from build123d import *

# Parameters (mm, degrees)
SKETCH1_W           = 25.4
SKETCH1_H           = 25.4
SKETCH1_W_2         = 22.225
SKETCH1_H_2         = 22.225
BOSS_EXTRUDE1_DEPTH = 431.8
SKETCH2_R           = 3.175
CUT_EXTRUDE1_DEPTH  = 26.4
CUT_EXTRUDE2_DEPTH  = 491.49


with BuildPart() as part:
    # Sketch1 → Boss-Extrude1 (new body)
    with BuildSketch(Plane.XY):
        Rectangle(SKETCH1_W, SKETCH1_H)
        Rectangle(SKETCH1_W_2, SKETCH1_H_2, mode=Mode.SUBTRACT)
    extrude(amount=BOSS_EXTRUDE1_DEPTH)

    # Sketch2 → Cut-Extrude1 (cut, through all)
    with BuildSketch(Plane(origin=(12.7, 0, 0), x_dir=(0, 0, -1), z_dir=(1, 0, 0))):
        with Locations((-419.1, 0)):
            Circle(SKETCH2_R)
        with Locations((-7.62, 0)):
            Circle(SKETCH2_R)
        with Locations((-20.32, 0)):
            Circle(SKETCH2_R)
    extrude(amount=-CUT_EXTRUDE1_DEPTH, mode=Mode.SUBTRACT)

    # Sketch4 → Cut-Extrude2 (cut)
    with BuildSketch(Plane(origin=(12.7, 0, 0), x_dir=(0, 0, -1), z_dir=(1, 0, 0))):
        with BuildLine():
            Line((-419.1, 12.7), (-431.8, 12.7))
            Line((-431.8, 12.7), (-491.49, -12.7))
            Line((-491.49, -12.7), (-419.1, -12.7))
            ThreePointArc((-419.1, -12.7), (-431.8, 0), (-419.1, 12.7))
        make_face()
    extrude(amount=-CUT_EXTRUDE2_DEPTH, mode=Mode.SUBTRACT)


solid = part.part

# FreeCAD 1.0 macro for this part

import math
import FreeCAD as App
import Part
import Sketcher
Q = App.Units.Quantity

doc = App.newDocument("Part")
body = doc.addObject("PartDesign::Body", "Body")

# Sketch on XY plane
sketch1 = body.newObject("Sketcher::SketchObject", "Sketch")
sketch1.AttachmentSupport = (doc.getObject("XY_Plane"), [""])
sketch1.MapMode = "FlatFace"
sketch1.addGeometry(Part.LineSegment(App.Vector(-12.7, 12.7, 0), App.Vector(-12.7, -12.7, 0)), False)
sketch1.addGeometry(Part.LineSegment(App.Vector(-12.7, -12.7, 0), App.Vector(12.7, -12.7, 0)), False)
sketch1.addGeometry(Part.LineSegment(App.Vector(12.7, -12.7, 0), App.Vector(12.7, 12.7, 0)), False)
sketch1.addGeometry(Part.LineSegment(App.Vector(12.7, 12.7, 0), App.Vector(-12.7, 12.7, 0)), False)
sketch1.addGeometry(Part.LineSegment(App.Vector(11.1125, -11.1125, 0), App.Vector(-11.1125, -11.1125, 0)), False)
sketch1.addGeometry(Part.LineSegment(App.Vector(-11.1125, -11.1125, 0), App.Vector(-11.1125, 11.1125, 0)), False)
sketch1.addGeometry(Part.LineSegment(App.Vector(-11.1125, 11.1125, 0), App.Vector(11.1125, 11.1125, 0)), False)
sketch1.addGeometry(Part.LineSegment(App.Vector(11.1125, 11.1125, 0), App.Vector(11.1125, -11.1125, 0)), False)
sketch1.addConstraint(Sketcher.Constraint("Coincident", 0, 2, 1, 1))
sketch1.addConstraint(Sketcher.Constraint("Coincident", 1, 2, 2, 1))
sketch1.addConstraint(Sketcher.Constraint("Coincident", 2, 2, 3, 1))
sketch1.addConstraint(Sketcher.Constraint("Coincident", 3, 2, 0, 1))
sketch1.addConstraint(Sketcher.Constraint("Coincident", 4, 2, 5, 1))
sketch1.addConstraint(Sketcher.Constraint("Coincident", 5, 2, 6, 1))
sketch1.addConstraint(Sketcher.Constraint("Coincident", 6, 2, 7, 1))
sketch1.addConstraint(Sketcher.Constraint("Coincident", 7, 2, 4, 1))
sketch1.addConstraint(Sketcher.Constraint("Vertical", 0))
sketch1.addConstraint(Sketcher.Constraint("Horizontal", 1))
sketch1.addConstraint(Sketcher.Constraint("Vertical", 2))
sketch1.addConstraint(Sketcher.Constraint("Horizontal", 3))
sketch1.addConstraint(Sketcher.Constraint("Horizontal", 4))
sketch1.addConstraint(Sketcher.Constraint("Vertical", 5))
sketch1.addConstraint(Sketcher.Constraint("Horizontal", 6))
sketch1.addConstraint(Sketcher.Constraint("Vertical", 7))
sketch1.addConstraint(Sketcher.Constraint("Symmetric", 0, 2, 2, 2, -1, 1))
sketch1.addConstraint(Sketcher.Constraint("Symmetric", 4, 2, 6, 2, -1, 1))
sketch1.addConstraint(Sketcher.Constraint("Equal", 3, 0))
sketch1.addConstraint(Sketcher.Constraint("Equal", 6, 5))
sketch1.addConstraint(Sketcher.Constraint("DistanceX", 1, 1, 1, 2, Q("1 in")))
sketch1.addConstraint(Sketcher.Constraint("DistanceX", 4, 2, 4, 1, Q("0.875 in")))
pad1 = body.newObject("PartDesign::Pad", "Pad")
pad1.Profile = sketch1
pad1.Length = Q("17 in")

# Sketch on YZ plane
sketch2 = body.newObject("Sketcher::SketchObject", "Sketch001")
sketch2.AttachmentSupport = (doc.getObject("YZ_Plane"), [""])
sketch2.MapMode = "FlatFace"
sketch2.AttachmentOffset = App.Placement(App.Vector(0, 0, 0.5 * 25.4), App.Rotation())
sketch2.addGeometry(Part.Circle(App.Vector(0, 419.1, 0), App.Vector(0, 0, 1), 3.175), False)
sketch2.addGeometry(Part.Circle(App.Vector(0, 7.62, 0), App.Vector(0, 0, 1), 3.175), False)
sketch2.addGeometry(Part.Circle(App.Vector(0, 20.32, 0), App.Vector(0, 0, 1), 3.175), False)
sketch2.addConstraint(Sketcher.Constraint("Equal", 0, 1))
sketch2.addConstraint(Sketcher.Constraint("Equal", 1, 2))
sketch2.addConstraint(Sketcher.Constraint("PointOnObject", 0, 3, -2))
sketch2.addConstraint(Sketcher.Constraint("PointOnObject", 1, 3, -2))
sketch2.addConstraint(Sketcher.Constraint("PointOnObject", 2, 3, -2))
sketch2.addConstraint(Sketcher.Constraint("Diameter", 0, Q("0.25 in")))
sketch2.addConstraint(Sketcher.Constraint("DistanceY", -1, 1, 0, 3, Q("16.5 in")))
sketch2.addConstraint(Sketcher.Constraint("DistanceY", -1, 1, 1, 3, Q("0.3 in")))
sketch2.addConstraint(Sketcher.Constraint("DistanceY", -1, 1, 2, 3, Q("0.8 in")))
pocket1 = body.newObject("PartDesign::Pocket", "Pocket")
pocket1.Profile = sketch2
pocket1.Type = "ThroughAll"

# Sketch on YZ plane
sketch3 = body.newObject("Sketcher::SketchObject", "Sketch002")
sketch3.AttachmentSupport = (doc.getObject("YZ_Plane"), [""])
sketch3.MapMode = "FlatFace"
sketch3.AttachmentOffset = App.Placement(App.Vector(0, 0, 0.5 * 25.4), App.Rotation())
sketch3.addGeometry(Part.LineSegment(App.Vector(12.7, 419.1, 0), App.Vector(12.7, 431.8, 0)), False)
sketch3.addGeometry(Part.LineSegment(App.Vector(12.7, 431.8, 0), App.Vector(-12.7, 491.49, 0)), False)
sketch3.addGeometry(Part.LineSegment(App.Vector(-12.7, 491.49, 0), App.Vector(-12.7, 419.1, 0)), False)
sketch3.addGeometry(Part.ArcOfCircle(Part.Circle(App.Vector(0, 419.1, 0), App.Vector(0, 0, 1), 12.7), math.radians(0), math.radians(180)), False)
sketch3.addConstraint(Sketcher.Constraint("Coincident", 0, 2, 1, 1))
sketch3.addConstraint(Sketcher.Constraint("Coincident", 1, 2, 2, 1))
sketch3.addConstraint(Sketcher.Constraint("Tangent", 2, 2, 3, 2))
sketch3.addConstraint(Sketcher.Constraint("Tangent", 3, 1, 0, 1))
sketch3.addConstraint(Sketcher.Constraint("Vertical", 0))
sketch3.addConstraint(Sketcher.Constraint("Vertical", 2))
sketch3.addConstraint(Sketcher.Constraint("PointOnObject", 3, 3, -2))
sketch3.addConstraint(Sketcher.Constraint("Radius", 3, Q("0.5 in")))
sketch3.addConstraint(Sketcher.Constraint("DistanceY", 0, 1, 0, 2, Q("0.5 in")))
sketch3.addConstraint(Sketcher.Constraint("DistanceY", -1, 1, 0, 2, Q("17 in")))
sketch3.addConstraint(Sketcher.Constraint("DistanceY", 2, 2, 2, 1, Q("2.85 in")))
pocket2 = body.newObject("PartDesign::Pocket", "Pocket001")
pocket2.Profile = sketch3
pocket2.Length = Q("19.35 in")

doc.recompute()
